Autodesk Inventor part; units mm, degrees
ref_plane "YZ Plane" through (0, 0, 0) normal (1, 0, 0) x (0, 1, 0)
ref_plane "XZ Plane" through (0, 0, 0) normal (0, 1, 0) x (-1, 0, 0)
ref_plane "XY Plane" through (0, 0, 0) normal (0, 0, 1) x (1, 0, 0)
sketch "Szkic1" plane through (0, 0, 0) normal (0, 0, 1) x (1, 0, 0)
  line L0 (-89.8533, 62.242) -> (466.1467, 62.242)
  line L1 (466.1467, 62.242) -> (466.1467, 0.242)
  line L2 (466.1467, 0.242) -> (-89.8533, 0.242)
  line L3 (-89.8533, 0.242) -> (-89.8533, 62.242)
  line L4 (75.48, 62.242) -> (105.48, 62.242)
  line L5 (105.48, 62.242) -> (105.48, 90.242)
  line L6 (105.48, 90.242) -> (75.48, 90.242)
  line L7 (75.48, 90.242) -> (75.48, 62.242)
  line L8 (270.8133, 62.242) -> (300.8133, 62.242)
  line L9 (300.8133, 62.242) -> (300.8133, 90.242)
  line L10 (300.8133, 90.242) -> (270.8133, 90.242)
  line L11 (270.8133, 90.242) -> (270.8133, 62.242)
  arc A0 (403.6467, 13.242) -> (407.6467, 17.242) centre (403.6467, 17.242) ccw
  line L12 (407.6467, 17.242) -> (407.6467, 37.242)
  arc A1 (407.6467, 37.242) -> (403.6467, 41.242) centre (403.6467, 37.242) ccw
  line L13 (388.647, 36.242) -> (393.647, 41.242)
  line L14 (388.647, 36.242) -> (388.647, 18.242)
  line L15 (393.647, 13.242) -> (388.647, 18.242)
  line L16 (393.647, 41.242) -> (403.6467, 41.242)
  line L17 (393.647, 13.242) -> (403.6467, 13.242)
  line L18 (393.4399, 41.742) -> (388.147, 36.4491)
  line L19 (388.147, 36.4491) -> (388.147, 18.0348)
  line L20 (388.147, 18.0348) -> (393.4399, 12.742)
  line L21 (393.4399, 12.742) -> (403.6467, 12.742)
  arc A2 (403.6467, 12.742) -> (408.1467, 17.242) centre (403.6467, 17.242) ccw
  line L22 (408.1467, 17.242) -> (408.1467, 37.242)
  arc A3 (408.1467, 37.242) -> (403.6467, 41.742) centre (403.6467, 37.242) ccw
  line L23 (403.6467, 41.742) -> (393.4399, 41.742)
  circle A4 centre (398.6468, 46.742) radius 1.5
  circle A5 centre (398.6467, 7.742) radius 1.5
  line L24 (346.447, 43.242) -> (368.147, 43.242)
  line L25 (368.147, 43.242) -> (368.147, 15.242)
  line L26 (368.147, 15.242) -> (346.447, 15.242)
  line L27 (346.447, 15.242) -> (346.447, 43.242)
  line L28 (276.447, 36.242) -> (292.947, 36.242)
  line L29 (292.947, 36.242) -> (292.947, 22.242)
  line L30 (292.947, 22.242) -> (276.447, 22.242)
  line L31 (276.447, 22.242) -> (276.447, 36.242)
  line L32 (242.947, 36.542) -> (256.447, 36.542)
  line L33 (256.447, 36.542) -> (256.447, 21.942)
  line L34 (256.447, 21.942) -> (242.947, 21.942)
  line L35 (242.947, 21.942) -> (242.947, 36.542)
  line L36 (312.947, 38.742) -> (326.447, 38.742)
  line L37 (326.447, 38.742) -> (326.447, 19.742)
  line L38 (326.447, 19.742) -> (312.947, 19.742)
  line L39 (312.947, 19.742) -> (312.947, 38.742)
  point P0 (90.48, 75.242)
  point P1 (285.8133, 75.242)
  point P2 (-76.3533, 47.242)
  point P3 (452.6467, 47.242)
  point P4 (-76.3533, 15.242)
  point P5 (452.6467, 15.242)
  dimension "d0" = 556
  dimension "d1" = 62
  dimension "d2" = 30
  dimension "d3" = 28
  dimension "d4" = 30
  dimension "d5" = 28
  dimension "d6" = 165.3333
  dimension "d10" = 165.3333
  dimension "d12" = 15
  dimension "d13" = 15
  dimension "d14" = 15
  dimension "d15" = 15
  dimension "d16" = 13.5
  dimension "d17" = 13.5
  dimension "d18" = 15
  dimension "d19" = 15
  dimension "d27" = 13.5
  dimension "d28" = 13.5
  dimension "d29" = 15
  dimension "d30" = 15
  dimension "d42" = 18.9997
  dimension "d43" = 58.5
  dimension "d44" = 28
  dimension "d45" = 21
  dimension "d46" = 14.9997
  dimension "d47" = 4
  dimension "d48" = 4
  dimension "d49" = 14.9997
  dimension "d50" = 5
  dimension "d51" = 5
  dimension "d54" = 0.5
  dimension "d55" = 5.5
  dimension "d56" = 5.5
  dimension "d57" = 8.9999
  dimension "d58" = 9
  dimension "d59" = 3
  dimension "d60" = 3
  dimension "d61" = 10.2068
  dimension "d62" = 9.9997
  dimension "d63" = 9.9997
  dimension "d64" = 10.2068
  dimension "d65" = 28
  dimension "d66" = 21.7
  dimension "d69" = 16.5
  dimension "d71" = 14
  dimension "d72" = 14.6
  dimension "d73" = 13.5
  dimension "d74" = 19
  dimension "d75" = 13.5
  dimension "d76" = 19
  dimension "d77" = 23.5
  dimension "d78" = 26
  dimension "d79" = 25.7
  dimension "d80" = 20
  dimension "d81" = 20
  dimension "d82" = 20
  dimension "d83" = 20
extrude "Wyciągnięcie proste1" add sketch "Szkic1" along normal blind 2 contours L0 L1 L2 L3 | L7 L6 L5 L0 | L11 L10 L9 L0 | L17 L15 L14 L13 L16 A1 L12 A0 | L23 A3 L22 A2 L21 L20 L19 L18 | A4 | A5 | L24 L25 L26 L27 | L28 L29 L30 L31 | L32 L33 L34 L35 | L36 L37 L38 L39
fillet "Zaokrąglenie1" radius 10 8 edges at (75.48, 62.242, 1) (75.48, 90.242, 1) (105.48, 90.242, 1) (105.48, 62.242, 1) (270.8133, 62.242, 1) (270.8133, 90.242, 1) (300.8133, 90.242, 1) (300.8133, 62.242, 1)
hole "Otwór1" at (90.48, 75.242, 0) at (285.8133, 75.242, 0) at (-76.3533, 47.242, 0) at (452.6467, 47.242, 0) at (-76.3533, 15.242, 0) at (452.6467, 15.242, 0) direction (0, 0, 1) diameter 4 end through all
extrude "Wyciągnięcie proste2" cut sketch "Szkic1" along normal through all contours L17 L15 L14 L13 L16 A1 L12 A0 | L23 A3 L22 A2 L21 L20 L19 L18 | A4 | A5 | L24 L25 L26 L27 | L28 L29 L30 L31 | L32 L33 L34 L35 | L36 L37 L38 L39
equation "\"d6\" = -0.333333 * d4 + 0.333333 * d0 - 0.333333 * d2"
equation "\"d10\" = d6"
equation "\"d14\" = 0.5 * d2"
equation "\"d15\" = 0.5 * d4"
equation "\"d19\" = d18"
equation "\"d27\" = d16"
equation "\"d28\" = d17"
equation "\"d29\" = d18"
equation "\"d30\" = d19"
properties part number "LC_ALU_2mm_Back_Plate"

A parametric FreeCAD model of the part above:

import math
import FreeCAD as App
import Part
import Sketcher
Q = App.Units.Quantity


def edges_at(feature, points):
    """Names of the edges that pass closest to the given points."""
    edges = feature.Shape.Edges
    near = lambda p: min(range(len(edges)), key=lambda i: edges[i].distToShape(Part.Vertex(*p))[0])
    return sorted({f"Edge{near(p) + 1}" for p in points})

doc = App.newDocument("Part")
body = doc.addObject("PartDesign::Body", "Body")

# Sketch on XY plane
sketch1 = doc.addObject("Sketcher::SketchObject", "Sketch")
body.addObject(sketch1)
sketch1.AttachmentSupport = (doc.XY_Plane, [""])
sketch1.MapMode = "FlatFace"
sketch1.addGeometry([
    Part.LineSegment(App.Vector(75, 62, 0), App.Vector(-90, 62, 0)),  # 0
    Part.LineSegment(App.Vector(-90, 62, 0), App.Vector(-90, 0, 0)),  # 1
    Part.LineSegment(App.Vector(-90, 0, 0), App.Vector(466, 0, 0)),  # 2
    Part.LineSegment(App.Vector(466, 0, 0), App.Vector(466, 62, 0)),  # 3
    Part.LineSegment(App.Vector(466, 62, 0), App.Vector(301, 62, 0)),  # 4
    Part.LineSegment(App.Vector(301, 62, 0), App.Vector(301, 90, 0)),  # 5
    Part.LineSegment(App.Vector(301, 90, 0), App.Vector(271, 90, 0)),  # 6
    Part.LineSegment(App.Vector(271, 90, 0), App.Vector(271, 62, 0)),  # 7
    Part.LineSegment(App.Vector(271, 62, 0), App.Vector(105, 62, 0)),  # 8
    Part.LineSegment(App.Vector(105, 62, 0), App.Vector(105, 90, 0)),  # 9
    Part.LineSegment(App.Vector(105, 90, 0), App.Vector(75, 90, 0)),  # 10
    Part.LineSegment(App.Vector(75, 90, 0), App.Vector(75, 62, 0)),  # 11
], False)
sketch1.addConstraint([
    Sketcher.Constraint("Coincident", 0, 2, 1, 1),
    Sketcher.Constraint("Coincident", 1, 2, 2, 1),
    Sketcher.Constraint("Coincident", 2, 2, 3, 1),
    Sketcher.Constraint("Coincident", 3, 2, 4, 1),
    Sketcher.Constraint("Coincident", 4, 2, 5, 1),
    Sketcher.Constraint("Coincident", 5, 2, 6, 1),
    Sketcher.Constraint("Coincident", 6, 2, 7, 1),
    Sketcher.Constraint("Coincident", 7, 2, 8, 1),
    Sketcher.Constraint("Coincident", 8, 2, 9, 1),
    Sketcher.Constraint("Coincident", 9, 2, 10, 1),
    Sketcher.Constraint("Coincident", 10, 2, 11, 1),
    Sketcher.Constraint("Coincident", 11, 2, 0, 1),
    Sketcher.Constraint("Horizontal", 0),
    Sketcher.Constraint("Vertical", 1),
    Sketcher.Constraint("Horizontal", 2),
    Sketcher.Constraint("Vertical", 3),
    Sketcher.Constraint("Horizontal", 4),
    Sketcher.Constraint("Vertical", 5),
    Sketcher.Constraint("Horizontal", 6),
    Sketcher.Constraint("Vertical", 7),
    Sketcher.Constraint("Horizontal", 8),
    Sketcher.Constraint("Vertical", 9),
    Sketcher.Constraint("Horizontal", 10),
    Sketcher.Constraint("Vertical", 11),
    Sketcher.Constraint("Horizontal", 0, 2, 3, 2),
    Sketcher.Constraint("Horizontal", 4, 2, 7, 2),
    Sketcher.Constraint("Horizontal", 6, 2, 9, 2),
    Sketcher.Constraint("Equal", 0, 4),
    Sketcher.Constraint("Equal", 4, 8),
    Sketcher.Constraint("Equal", 6, 10),
    Sketcher.Constraint("DistanceX", 2, 1, 2, 2, Q("556 mm")),
    Sketcher.Constraint("DistanceX", 6, 2, 6, 1, Q("30 mm")),
    Sketcher.Constraint("DistanceY", 1, 2, 1, 1, Q("62 mm")),
    Sketcher.Constraint("DistanceY", 5, 1, 5, 2, Q("28 mm")),
    Sketcher.Constraint("DistanceX", -1, 1, 8, 2, Q("105.48 mm")),
    Sketcher.Constraint("DistanceY", -1, 1, 0, 2, Q("62.242 mm")),
])
pad1 = doc.addObject("PartDesign::Pad", "Pad")
body.addObject(pad1)
pad1.Profile = sketch1
pad1.Length = 2
doc.recompute()

fillet = doc.addObject("PartDesign::Fillet", "Fillet")
body.addObject(fillet)
fillet.Base = (pad1, edges_at(pad1, [
    (75.48, 62.242, 1),
    (75.48, 90.242, 1),
    (105.48, 90.242, 1),
    (105.48, 62.242, 1),
    (270.813, 62.242, 1),
    (270.813, 90.242, 1),
    (300.813, 90.242, 1),
    (300.813, 62.242, 1),
]))
fillet.Radius = 10

# Sketch on XY plane
sketch2 = doc.addObject("Sketcher::SketchObject", "Sketch001")
body.addObject(sketch2)
sketch2.AttachmentSupport = (doc.XY_Plane, [""])
sketch2.MapMode = "FlatFace"
sketch2.addGeometry([
    Part.Circle(App.Vector(90.5, 75.2, 0), App.Vector(0, 0, 1), 2),  # 0
    Part.Circle(App.Vector(285.8, 75.2, 0), App.Vector(0, 0, 1), 2),  # 1
    Part.Circle(App.Vector(-76.4, 47.2, 0), App.Vector(0, 0, 1), 2),  # 2
    Part.Circle(App.Vector(452.6, 47.2, 0), App.Vector(0, 0, 1), 2),  # 3
    Part.Circle(App.Vector(-76.4, 15.2, 0), App.Vector(0, 0, 1), 2),  # 4
    Part.Circle(App.Vector(452.6, 15.2, 0), App.Vector(0, 0, 1), 2),  # 5
], False)
sketch2.addConstraint([
    Sketcher.Constraint("Equal", 0, 1),
    Sketcher.Constraint("Equal", 1, 2),
    Sketcher.Constraint("Equal", 2, 3),
    Sketcher.Constraint("Equal", 3, 4),
    Sketcher.Constraint("Equal", 4, 5),
    Sketcher.Constraint("Horizontal", 0, 3, 1, 3),
    Sketcher.Constraint("Horizontal", 2, 3, 3, 3),
    Sketcher.Constraint("Horizontal", 4, 3, 5, 3),
    Sketcher.Constraint("Vertical", 2, 3, 4, 3),
    Sketcher.Constraint("Vertical", 3, 3, 5, 3),
    Sketcher.Constraint("Diameter", 0, Q("4 mm")),
    Sketcher.Constraint("DistanceY", 2, 3, 0, 3, Q("28 mm")),
    Sketcher.Constraint("DistanceX", 2, 3, 3, 3, Q("529 mm")),
    Sketcher.Constraint("DistanceY", 4, 3, 2, 3, Q("32 mm")),
    Sketcher.Constraint("DistanceX", -1, 1, 0, 3, Q("90.48 mm")),
    Sketcher.Constraint("DistanceY", -1, 1, 0, 3, Q("75.242 mm")),
    Sketcher.Constraint("DistanceX", -1, 1, 1, 3, Q("285.8133 mm")),
    Sketcher.Constraint("DistanceX", 2, 3, -1, 1, Q("76.3533 mm")),
])
doc.recompute()
hole = doc.addObject("PartDesign::Hole", "Hole")
body.addObject(hole)
hole.Profile = sketch2
hole.ThreadType = "None"
hole.Diameter = 4
hole.DepthType = "ThroughAll"
hole.Reversed = True

# Sketch on XY plane
sketch3 = doc.addObject("Sketcher::SketchObject", "Sketch002")
body.addObject(sketch3)
sketch3.AttachmentSupport = (doc.XY_Plane, [""])
sketch3.MapMode = "FlatFace"
sketch3.addGeometry([
    Part.LineSegment(App.Vector(403.6, 41.7, 0), App.Vector(393.4, 41.7, 0)),  # 0
    Part.LineSegment(App.Vector(393.4, 41.7, 0), App.Vector(388.1, 36.4, 0)),  # 1
    Part.LineSegment(App.Vector(388.1, 36.4, 0), App.Vector(388.1, 18, 0)),  # 2
    Part.LineSegment(App.Vector(388.1, 18, 0), App.Vector(393.4, 12.7, 0)),  # 3
    Part.LineSegment(App.Vector(393.4, 12.7, 0), App.Vector(403.6, 12.7, 0)),  # 4
    Part.ArcOfCircle(Part.Circle(App.Vector(403.6, 17.2, 0), App.Vector(0, 0, 1), 4.5), math.radians(-90), math.radians(0)),  # 5
    Part.LineSegment(App.Vector(408.1, 17.2, 0), App.Vector(408.1, 37.2, 0)),  # 6
    Part.ArcOfCircle(Part.Circle(App.Vector(403.6, 37.2, 0), App.Vector(0, 0, 1), 4.5), math.radians(0), math.radians(90)),  # 7
    Part.Circle(App.Vector(398.6, 46.7, 0), App.Vector(0, 0, 1), 1.5),  # 8
    Part.Circle(App.Vector(398.6, 7.7, 0), App.Vector(0, 0, 1), 1.5),  # 9
    Part.LineSegment(App.Vector(368.1, 43.2, 0), App.Vector(346.4, 43.2, 0)),  # 10
    Part.LineSegment(App.Vector(346.4, 43.2, 0), App.Vector(346.4, 15.2, 0)),  # 11
    Part.LineSegment(App.Vector(346.4, 15.2, 0), App.Vector(368.1, 15.2, 0)),  # 12
    Part.LineSegment(App.Vector(368.1, 15.2, 0), App.Vector(368.1, 43.2, 0)),  # 13
    Part.LineSegment(App.Vector(292.9, 36.2, 0), App.Vector(276.4, 36.2, 0)),  # 14
    Part.LineSegment(App.Vector(276.4, 36.2, 0), App.Vector(276.4, 22.2, 0)),  # 15
    Part.LineSegment(App.Vector(276.4, 22.2, 0), App.Vector(292.9, 22.2, 0)),  # 16
    Part.LineSegment(App.Vector(292.9, 22.2, 0), App.Vector(292.9, 36.2, 0)),  # 17
    Part.LineSegment(App.Vector(256.4, 36.5, 0), App.Vector(242.9, 36.5, 0)),  # 18
    Part.LineSegment(App.Vector(242.9, 36.5, 0), App.Vector(242.9, 21.9, 0)),  # 19
    Part.LineSegment(App.Vector(242.9, 21.9, 0), App.Vector(256.4, 21.9, 0)),  # 20
    Part.LineSegment(App.Vector(256.4, 21.9, 0), App.Vector(256.4, 36.5, 0)),  # 21
    Part.LineSegment(App.Vector(326.4, 38.7, 0), App.Vector(312.9, 38.7, 0)),  # 22
    Part.LineSegment(App.Vector(312.9, 38.7, 0), App.Vector(312.9, 19.7, 0)),  # 23
    Part.LineSegment(App.Vector(312.9, 19.7, 0), App.Vector(326.4, 19.7, 0)),  # 24
    Part.LineSegment(App.Vector(326.4, 19.7, 0), App.Vector(326.4, 38.7, 0)),  # 25
], False)
sketch3.addConstraint([
    Sketcher.Constraint("Coincident", 0, 2, 1, 1),
    Sketcher.Constraint("Coincident", 1, 2, 2, 1),
    Sketcher.Constraint("Coincident", 2, 2, 3, 1),
    Sketcher.Constraint("Coincident", 3, 2, 4, 1),
    Sketcher.Constraint("Tangent", 4, 2, 5, 1),
    Sketcher.Constraint("Tangent", 5, 2, 6, 1),
    Sketcher.Constraint("Tangent", 6, 2, 7, 1),
    Sketcher.Constraint("Tangent", 7, 2, 0, 1),
    Sketcher.Constraint("Coincident", 10, 2, 11, 1),
    Sketcher.Constraint("Coincident", 11, 2, 12, 1),
    Sketcher.Constraint("Coincident", 12, 2, 13, 1),
    Sketcher.Constraint("Coincident", 13, 2, 10, 1),
    Sketcher.Constraint("Coincident", 14, 2, 15, 1),
    Sketcher.Constraint("Coincident", 15, 2, 16, 1),
    Sketcher.Constraint("Coincident", 16, 2, 17, 1),
    Sketcher.Constraint("Coincident", 17, 2, 14, 1),
    Sketcher.Constraint("Coincident", 18, 2, 19, 1),
    Sketcher.Constraint("Coincident", 19, 2, 20, 1),
    Sketcher.Constraint("Coincident", 20, 2, 21, 1),
    Sketcher.Constraint("Coincident", 21, 2, 18, 1),
    Sketcher.Constraint("Coincident", 22, 2, 23, 1),
    Sketcher.Constraint("Coincident", 23, 2, 24, 1),
    Sketcher.Constraint("Coincident", 24, 2, 25, 1),
    Sketcher.Constraint("Coincident", 25, 2, 22, 1),
    Sketcher.Constraint("Horizontal", 0),
    Sketcher.Constraint("Vertical", 2),
    Sketcher.Constraint("Horizontal", 4),
    Sketcher.Constraint("Vertical", 6),
    Sketcher.Constraint("Horizontal", 10),
    Sketcher.Constraint("Vertical", 11),
    Sketcher.Constraint("Horizontal", 12),
    Sketcher.Constraint("Vertical", 13),
    Sketcher.Constraint("Horizontal", 14),
    Sketcher.Constraint("Vertical", 15),
    Sketcher.Constraint("Horizontal", 16),
    Sketcher.Constraint("Vertical", 17),
    Sketcher.Constraint("Horizontal", 18),
    Sketcher.Constraint("Vertical", 19),
    Sketcher.Constraint("Horizontal", 20),
    Sketcher.Constraint("Vertical", 21),
    Sketcher.Constraint("Horizontal", 22),
    Sketcher.Constraint("Vertical", 23),
    Sketcher.Constraint("Horizontal", 24),
    Sketcher.Constraint("Vertical", 25),
    Sketcher.Constraint("Equal", 5, 7),
    Sketcher.Constraint("Equal", 8, 9),
    Sketcher.Constraint("Perpendicular", 1, 3),
    Sketcher.Constraint("Vertical", 8, 3, 9, 3),
    Sketcher.Constraint("Vertical", 0, 2, 3, 2),
    Sketcher.Constraint("Equal", 20, 22),
    Sketcher.Constraint("Equal", 1, 3),
    Sketcher.Constraint("Diameter", 8, Q("3 mm")),
    Sketcher.Constraint("Radius", 5, Q("4.5 mm")),
    Sketcher.Constraint("DistanceY", 6, 1, 6, 2, Q("20 mm")),
    Sketcher.Constraint("DistanceY", 11, 2, 11, 1, Q("28 mm")),
    Sketcher.Constraint("DistanceY", 15, 2, 15, 1, Q("14 mm")),
    Sketcher.Constraint("DistanceY", 23, 2, 23, 1, Q("19 mm")),
    Sketcher.Constraint("DistanceX", 10, 2, 10, 1, Q("21.7 mm")),
    Sketcher.Constraint("DistanceX", 14, 2, 14, 1, Q("16.5 mm")),
    Sketcher.Constraint("DistanceX", 18, 2, 18, 1, Q("13.5 mm")),
    Sketcher.Constraint("DistanceY", 19, 2, 19, 1, Q("14.6 mm")),
    Sketcher.Constraint("DistanceX", 8, 3, 7, 3, Q("5 mm")),
    Sketcher.Constraint("DistanceY", 0, 2, 8, 3, Q("5 mm")),
    Sketcher.Constraint("DistanceY", 9, 3, 3, 2, Q("5 mm")),
    Sketcher.Constraint("DistanceX", 12, 2, 2, 2, Q("20 mm")),
    Sketcher.Constraint("DistanceY", 11, 2, 14, 2, Q("21 mm")),
    Sketcher.Constraint("DistanceX", 20, 2, 15, 2, Q("20 mm")),
    Sketcher.Constraint("DistanceX", 17, 2, 22, 2, Q("20 mm")),
    Sketcher.Constraint("DistanceX", 24, 2, 11, 2, Q("20 mm")),
    Sketcher.Constraint("DistanceY", 16, 2, 22, 2, Q("16.5 mm")),
    Sketcher.Constraint("DistanceX", 0, 2, 0, 1, Q("10.2068 mm")),
    Sketcher.Constraint("DistanceX", 2, 2, 5, 2, Q("19.9997 mm")),
    Sketcher.Constraint("DistanceY", 0, 2, 10, 2, Q("1.5 mm")),
    Sketcher.Constraint("DistanceY", 14, 2, 18, 2, Q("0.3 mm")),
    Sketcher.Constraint("DistanceX", -1, 1, 0, 2, Q("393.44 mm")),
    Sketcher.Constraint("DistanceY", -1, 1, 5, 3, Q("17.242 mm")),
])
pocket1 = doc.addObject("PartDesign::Pocket", "Pocket")
body.addObject(pocket1)
pocket1.Profile = sketch3
pocket1.Type = "ThroughAll"
pocket1.Reversed = True

doc.recompute()
